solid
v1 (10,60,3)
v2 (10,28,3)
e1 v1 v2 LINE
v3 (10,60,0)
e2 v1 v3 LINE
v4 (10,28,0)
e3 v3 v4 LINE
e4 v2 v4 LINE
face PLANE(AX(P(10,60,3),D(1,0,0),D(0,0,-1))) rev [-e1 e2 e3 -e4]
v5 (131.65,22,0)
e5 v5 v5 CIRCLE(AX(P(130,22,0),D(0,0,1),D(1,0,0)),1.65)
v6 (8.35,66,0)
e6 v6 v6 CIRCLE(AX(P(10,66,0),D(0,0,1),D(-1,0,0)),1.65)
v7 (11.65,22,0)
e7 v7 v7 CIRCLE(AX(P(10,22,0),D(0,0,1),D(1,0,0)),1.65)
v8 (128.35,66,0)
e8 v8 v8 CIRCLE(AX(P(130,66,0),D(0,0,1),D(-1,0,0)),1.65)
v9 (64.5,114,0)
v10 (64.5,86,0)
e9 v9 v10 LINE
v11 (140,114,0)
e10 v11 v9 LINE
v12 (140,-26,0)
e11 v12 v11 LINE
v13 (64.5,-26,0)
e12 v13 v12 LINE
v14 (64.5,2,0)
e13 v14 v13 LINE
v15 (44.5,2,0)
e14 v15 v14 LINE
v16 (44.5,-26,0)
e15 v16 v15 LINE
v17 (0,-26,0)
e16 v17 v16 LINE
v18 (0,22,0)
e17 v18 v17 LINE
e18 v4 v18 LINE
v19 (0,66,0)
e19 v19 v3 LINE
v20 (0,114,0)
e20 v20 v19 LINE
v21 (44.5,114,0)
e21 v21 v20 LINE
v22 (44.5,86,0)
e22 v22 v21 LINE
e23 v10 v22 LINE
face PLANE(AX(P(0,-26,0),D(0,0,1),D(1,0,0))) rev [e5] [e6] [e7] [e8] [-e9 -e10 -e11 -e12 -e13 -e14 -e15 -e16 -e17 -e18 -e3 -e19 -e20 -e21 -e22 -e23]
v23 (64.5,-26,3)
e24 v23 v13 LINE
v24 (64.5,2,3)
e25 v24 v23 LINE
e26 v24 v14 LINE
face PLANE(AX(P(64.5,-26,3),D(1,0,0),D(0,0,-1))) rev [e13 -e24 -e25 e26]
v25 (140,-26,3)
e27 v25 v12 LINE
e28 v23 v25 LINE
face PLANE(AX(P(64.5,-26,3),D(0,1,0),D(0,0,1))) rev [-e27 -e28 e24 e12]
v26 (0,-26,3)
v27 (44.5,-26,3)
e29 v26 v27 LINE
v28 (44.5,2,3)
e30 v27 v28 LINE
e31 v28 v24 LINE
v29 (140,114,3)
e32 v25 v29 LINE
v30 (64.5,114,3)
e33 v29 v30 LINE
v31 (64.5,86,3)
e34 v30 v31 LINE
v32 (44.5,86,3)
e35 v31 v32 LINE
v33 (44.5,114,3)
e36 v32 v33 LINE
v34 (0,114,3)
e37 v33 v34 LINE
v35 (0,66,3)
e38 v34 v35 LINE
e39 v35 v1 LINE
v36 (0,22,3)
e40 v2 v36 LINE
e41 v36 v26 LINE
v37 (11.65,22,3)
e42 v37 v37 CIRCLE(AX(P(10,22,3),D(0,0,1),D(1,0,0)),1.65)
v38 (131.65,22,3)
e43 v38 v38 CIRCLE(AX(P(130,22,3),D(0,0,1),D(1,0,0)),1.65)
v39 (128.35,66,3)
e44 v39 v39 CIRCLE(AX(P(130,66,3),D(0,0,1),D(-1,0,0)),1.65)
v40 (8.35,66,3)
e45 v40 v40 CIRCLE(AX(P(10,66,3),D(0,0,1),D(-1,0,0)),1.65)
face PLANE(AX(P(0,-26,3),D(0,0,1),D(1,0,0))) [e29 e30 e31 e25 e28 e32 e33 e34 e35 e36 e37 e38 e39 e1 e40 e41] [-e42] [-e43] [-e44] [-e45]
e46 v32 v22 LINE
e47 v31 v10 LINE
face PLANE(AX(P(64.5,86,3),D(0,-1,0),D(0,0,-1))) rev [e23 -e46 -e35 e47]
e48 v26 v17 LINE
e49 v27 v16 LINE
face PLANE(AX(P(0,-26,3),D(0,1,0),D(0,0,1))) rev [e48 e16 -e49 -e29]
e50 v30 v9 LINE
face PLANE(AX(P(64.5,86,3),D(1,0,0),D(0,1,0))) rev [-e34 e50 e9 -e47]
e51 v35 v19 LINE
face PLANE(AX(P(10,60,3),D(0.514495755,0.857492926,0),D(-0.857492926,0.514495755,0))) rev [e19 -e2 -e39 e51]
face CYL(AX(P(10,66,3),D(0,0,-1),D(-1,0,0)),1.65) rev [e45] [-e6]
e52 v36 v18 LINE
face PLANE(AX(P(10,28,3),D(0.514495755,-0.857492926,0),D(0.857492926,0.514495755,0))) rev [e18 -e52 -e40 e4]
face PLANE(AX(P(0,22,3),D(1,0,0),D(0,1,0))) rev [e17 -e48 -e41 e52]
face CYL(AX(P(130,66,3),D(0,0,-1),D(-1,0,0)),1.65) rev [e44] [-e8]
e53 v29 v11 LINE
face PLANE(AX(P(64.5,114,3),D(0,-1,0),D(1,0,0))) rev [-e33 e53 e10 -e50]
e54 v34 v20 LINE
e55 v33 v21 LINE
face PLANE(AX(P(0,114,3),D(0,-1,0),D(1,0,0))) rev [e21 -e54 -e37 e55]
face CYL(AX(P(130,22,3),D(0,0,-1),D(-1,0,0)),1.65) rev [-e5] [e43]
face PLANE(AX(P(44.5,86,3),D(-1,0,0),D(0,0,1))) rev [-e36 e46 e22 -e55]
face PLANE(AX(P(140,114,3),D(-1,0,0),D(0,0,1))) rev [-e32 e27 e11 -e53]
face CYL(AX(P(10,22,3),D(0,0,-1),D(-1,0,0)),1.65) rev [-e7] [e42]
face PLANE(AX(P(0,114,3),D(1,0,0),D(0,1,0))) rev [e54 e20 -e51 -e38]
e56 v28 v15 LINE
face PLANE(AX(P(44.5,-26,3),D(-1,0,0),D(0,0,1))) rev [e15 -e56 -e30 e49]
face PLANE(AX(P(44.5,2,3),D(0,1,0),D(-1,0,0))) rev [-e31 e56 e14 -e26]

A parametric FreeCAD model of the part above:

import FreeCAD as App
import Part
import Sketcher
Q = App.Units.Quantity

doc = App.newDocument("Part")
body = doc.addObject("PartDesign::Body", "Body")

sketch1 = body.newObject("Sketcher::SketchObject", "Sketch")
sketch1.AttachmentSupport = (doc.getObject("XY_Plane"), [""])
sketch1.MapMode = "FlatFace"
sketch1.addGeometry(Part.LineSegment(App.Vector(0, -26, 0), App.Vector(44.5, -26, 0)), False)
sketch1.addGeometry(Part.LineSegment(App.Vector(44.5, -26, 0), App.Vector(44.5, 2, 0)), False)
sketch1.addGeometry(Part.LineSegment(App.Vector(44.5, 2, 0), App.Vector(64.5, 2, 0)), False)
sketch1.addGeometry(Part.LineSegment(App.Vector(64.5, 2, 0), App.Vector(64.5, -26, 0)), False)
sketch1.addGeometry(Part.LineSegment(App.Vector(64.5, -26, 0), App.Vector(140, -26, 0)), False)
sketch1.addGeometry(Part.LineSegment(App.Vector(140, -26, 0), App.Vector(140, 114, 0)), False)
sketch1.addGeometry(Part.LineSegment(App.Vector(140, 114, 0), App.Vector(64.5, 114, 0)), False)
sketch1.addGeometry(Part.LineSegment(App.Vector(64.5, 114, 0), App.Vector(64.5, 86, 0)), False)
sketch1.addGeometry(Part.LineSegment(App.Vector(64.5, 86, 0), App.Vector(44.5, 86, 0)), False)
sketch1.addGeometry(Part.LineSegment(App.Vector(44.5, 86, 0), App.Vector(44.5, 114, 0)), False)
sketch1.addGeometry(Part.LineSegment(App.Vector(44.5, 114, 0), App.Vector(0, 114, 0)), False)
sketch1.addGeometry(Part.LineSegment(App.Vector(0, 114, 0), App.Vector(0, 66, 0)), False)
sketch1.addGeometry(Part.LineSegment(App.Vector(0, 66, 0), App.Vector(10, 60, 0)), False)
sketch1.addGeometry(Part.LineSegment(App.Vector(10, 60, 0), App.Vector(10, 28, 0)), False)
sketch1.addGeometry(Part.LineSegment(App.Vector(10, 28, 0), App.Vector(0, 22, 0)), False)
sketch1.addGeometry(Part.LineSegment(App.Vector(0, 22, 0), App.Vector(0, -26, 0)), False)
sketch1.addGeometry(Part.Circle(App.Vector(10, 22, 0), App.Vector(0, 0, 1), 1.6), False)
sketch1.addGeometry(Part.Circle(App.Vector(130, 22, 0), App.Vector(0, 0, 1), 1.6), False)
sketch1.addGeometry(Part.Circle(App.Vector(10, 66, 0), App.Vector(0, 0, 1), 1.6), False)
sketch1.addGeometry(Part.Circle(App.Vector(130, 66, 0), App.Vector(0, 0, 1), 1.6), False)
sketch1.addConstraint(Sketcher.Constraint("Coincident", 0, 2, 1, 1))
sketch1.addConstraint(Sketcher.Constraint("Coincident", 1, 2, 2, 1))
sketch1.addConstraint(Sketcher.Constraint("Coincident", 2, 2, 3, 1))
sketch1.addConstraint(Sketcher.Constraint("Coincident", 3, 2, 4, 1))
sketch1.addConstraint(Sketcher.Constraint("Coincident", 4, 2, 5, 1))
sketch1.addConstraint(Sketcher.Constraint("Coincident", 5, 2, 6, 1))
sketch1.addConstraint(Sketcher.Constraint("Coincident", 6, 2, 7, 1))
sketch1.addConstraint(Sketcher.Constraint("Coincident", 7, 2, 8, 1))
sketch1.addConstraint(Sketcher.Constraint("Coincident", 8, 2, 9, 1))
sketch1.addConstraint(Sketcher.Constraint("Coincident", 9, 2, 10, 1))
sketch1.addConstraint(Sketcher.Constraint("Coincident", 10, 2, 11, 1))
sketch1.addConstraint(Sketcher.Constraint("Coincident", 11, 2, 12, 1))
sketch1.addConstraint(Sketcher.Constraint("Coincident", 12, 2, 13, 1))
sketch1.addConstraint(Sketcher.Constraint("Coincident", 13, 2, 14, 1))
sketch1.addConstraint(Sketcher.Constraint("Coincident", 14, 2, 15, 1))
sketch1.addConstraint(Sketcher.Constraint("Coincident", 15, 2, 0, 1))
sketch1.addConstraint(Sketcher.Constraint("Horizontal", 0))
sketch1.addConstraint(Sketcher.Constraint("Vertical", 1))
sketch1.addConstraint(Sketcher.Constraint("Horizontal", 2))
sketch1.addConstraint(Sketcher.Constraint("Vertical", 3))
sketch1.addConstraint(Sketcher.Constraint("Horizontal", 4))
sketch1.addConstraint(Sketcher.Constraint("Vertical", 5))
sketch1.addConstraint(Sketcher.Constraint("Horizontal", 6))
sketch1.addConstraint(Sketcher.Constraint("Vertical", 7))
sketch1.addConstraint(Sketcher.Constraint("Horizontal", 8))
sketch1.addConstraint(Sketcher.Constraint("Vertical", 9))
sketch1.addConstraint(Sketcher.Constraint("Horizontal", 10))
sketch1.addConstraint(Sketcher.Constraint("Vertical", 11))
sketch1.addConstraint(Sketcher.Constraint("Vertical", 13))
sketch1.addConstraint(Sketcher.Constraint("Vertical", 15))
sketch1.addConstraint(Sketcher.Constraint("Equal", 16, 17))
sketch1.addConstraint(Sketcher.Constraint("Equal", 17, 18))
sketch1.addConstraint(Sketcher.Constraint("Equal", 18, 19))
sketch1.addConstraint(Sketcher.Constraint("PointOnObject", 10, 2, -2))
sketch1.addConstraint(Sketcher.Constraint("PointOnObject", 14, 2, -2))
sketch1.addConstraint(Sketcher.Constraint("Horizontal", 16, 3, 17, 3))
sketch1.addConstraint(Sketcher.Constraint("Horizontal", 18, 3, 19, 3))
sketch1.addConstraint(Sketcher.Constraint("Horizontal", 0, 2, 3, 2))
sketch1.addConstraint(Sketcher.Constraint("Horizontal", 6, 2, 9, 2))
sketch1.addConstraint(Sketcher.Constraint("Horizontal", 19, 3, 11, 2))
sketch1.addConstraint(Sketcher.Constraint("Horizontal", 17, 3, 14, 2))
sketch1.addConstraint(Sketcher.Constraint("Vertical", 16, 3, 18, 3))
sketch1.addConstraint(Sketcher.Constraint("Vertical", 17, 3, 19, 3))
sketch1.addConstraint(Sketcher.Constraint("Vertical", 3, 2, 6, 2))
sketch1.addConstraint(Sketcher.Constraint("Vertical", 1, 2, 8, 2))
sketch1.addConstraint(Sketcher.Constraint("Vertical", 18, 3, 12, 2))
sketch1.addConstraint(Sketcher.Constraint("Equal", 3, 7))
sketch1.addConstraint(Sketcher.Constraint("Equal", 11, 15))
sketch1.addConstraint(Sketcher.Constraint("Equal", 12, 14))
sketch1.addConstraint(Sketcher.Constraint("Diameter", 16, Q("3.3 mm")))
sketch1.addConstraint(Sketcher.Constraint("DistanceX", 2, 1, 2, 2, Q("20 mm")))
sketch1.addConstraint(Sketcher.Constraint("DistanceY", 1, 1, 1, 2, Q("28 mm")))
sketch1.addConstraint(Sketcher.Constraint("DistanceY", 5, 1, 5, 2, Q("140 mm")))
sketch1.addConstraint(Sketcher.Constraint("DistanceY", 11, 2, 11, 1, Q("48 mm")))
sketch1.addConstraint(Sketcher.Constraint("DistanceY", 13, 2, 13, 1, Q("32 mm")))
sketch1.addConstraint(Sketcher.Constraint("DistanceX", 0, 1, 0, 2, Q("44.5 mm")))
sketch1.addConstraint(Sketcher.Constraint("DistanceX", 4, 1, 4, 2, Q("75.5 mm")))
sketch1.addConstraint(Sketcher.Constraint("DistanceX", -1, 1, 16, 3, Q("10 mm")))
sketch1.addConstraint(Sketcher.Constraint("DistanceY", -1, 1, 16, 3, Q("22 mm")))
sketch1.addConstraint(Sketcher.Constraint("DistanceX", -1, 1, 17, 3, Q("130 mm")))
pad1 = body.newObject("PartDesign::Pad", "Pad")
pad1.Profile = sketch1
pad1.Length = 3

doc.recompute()
